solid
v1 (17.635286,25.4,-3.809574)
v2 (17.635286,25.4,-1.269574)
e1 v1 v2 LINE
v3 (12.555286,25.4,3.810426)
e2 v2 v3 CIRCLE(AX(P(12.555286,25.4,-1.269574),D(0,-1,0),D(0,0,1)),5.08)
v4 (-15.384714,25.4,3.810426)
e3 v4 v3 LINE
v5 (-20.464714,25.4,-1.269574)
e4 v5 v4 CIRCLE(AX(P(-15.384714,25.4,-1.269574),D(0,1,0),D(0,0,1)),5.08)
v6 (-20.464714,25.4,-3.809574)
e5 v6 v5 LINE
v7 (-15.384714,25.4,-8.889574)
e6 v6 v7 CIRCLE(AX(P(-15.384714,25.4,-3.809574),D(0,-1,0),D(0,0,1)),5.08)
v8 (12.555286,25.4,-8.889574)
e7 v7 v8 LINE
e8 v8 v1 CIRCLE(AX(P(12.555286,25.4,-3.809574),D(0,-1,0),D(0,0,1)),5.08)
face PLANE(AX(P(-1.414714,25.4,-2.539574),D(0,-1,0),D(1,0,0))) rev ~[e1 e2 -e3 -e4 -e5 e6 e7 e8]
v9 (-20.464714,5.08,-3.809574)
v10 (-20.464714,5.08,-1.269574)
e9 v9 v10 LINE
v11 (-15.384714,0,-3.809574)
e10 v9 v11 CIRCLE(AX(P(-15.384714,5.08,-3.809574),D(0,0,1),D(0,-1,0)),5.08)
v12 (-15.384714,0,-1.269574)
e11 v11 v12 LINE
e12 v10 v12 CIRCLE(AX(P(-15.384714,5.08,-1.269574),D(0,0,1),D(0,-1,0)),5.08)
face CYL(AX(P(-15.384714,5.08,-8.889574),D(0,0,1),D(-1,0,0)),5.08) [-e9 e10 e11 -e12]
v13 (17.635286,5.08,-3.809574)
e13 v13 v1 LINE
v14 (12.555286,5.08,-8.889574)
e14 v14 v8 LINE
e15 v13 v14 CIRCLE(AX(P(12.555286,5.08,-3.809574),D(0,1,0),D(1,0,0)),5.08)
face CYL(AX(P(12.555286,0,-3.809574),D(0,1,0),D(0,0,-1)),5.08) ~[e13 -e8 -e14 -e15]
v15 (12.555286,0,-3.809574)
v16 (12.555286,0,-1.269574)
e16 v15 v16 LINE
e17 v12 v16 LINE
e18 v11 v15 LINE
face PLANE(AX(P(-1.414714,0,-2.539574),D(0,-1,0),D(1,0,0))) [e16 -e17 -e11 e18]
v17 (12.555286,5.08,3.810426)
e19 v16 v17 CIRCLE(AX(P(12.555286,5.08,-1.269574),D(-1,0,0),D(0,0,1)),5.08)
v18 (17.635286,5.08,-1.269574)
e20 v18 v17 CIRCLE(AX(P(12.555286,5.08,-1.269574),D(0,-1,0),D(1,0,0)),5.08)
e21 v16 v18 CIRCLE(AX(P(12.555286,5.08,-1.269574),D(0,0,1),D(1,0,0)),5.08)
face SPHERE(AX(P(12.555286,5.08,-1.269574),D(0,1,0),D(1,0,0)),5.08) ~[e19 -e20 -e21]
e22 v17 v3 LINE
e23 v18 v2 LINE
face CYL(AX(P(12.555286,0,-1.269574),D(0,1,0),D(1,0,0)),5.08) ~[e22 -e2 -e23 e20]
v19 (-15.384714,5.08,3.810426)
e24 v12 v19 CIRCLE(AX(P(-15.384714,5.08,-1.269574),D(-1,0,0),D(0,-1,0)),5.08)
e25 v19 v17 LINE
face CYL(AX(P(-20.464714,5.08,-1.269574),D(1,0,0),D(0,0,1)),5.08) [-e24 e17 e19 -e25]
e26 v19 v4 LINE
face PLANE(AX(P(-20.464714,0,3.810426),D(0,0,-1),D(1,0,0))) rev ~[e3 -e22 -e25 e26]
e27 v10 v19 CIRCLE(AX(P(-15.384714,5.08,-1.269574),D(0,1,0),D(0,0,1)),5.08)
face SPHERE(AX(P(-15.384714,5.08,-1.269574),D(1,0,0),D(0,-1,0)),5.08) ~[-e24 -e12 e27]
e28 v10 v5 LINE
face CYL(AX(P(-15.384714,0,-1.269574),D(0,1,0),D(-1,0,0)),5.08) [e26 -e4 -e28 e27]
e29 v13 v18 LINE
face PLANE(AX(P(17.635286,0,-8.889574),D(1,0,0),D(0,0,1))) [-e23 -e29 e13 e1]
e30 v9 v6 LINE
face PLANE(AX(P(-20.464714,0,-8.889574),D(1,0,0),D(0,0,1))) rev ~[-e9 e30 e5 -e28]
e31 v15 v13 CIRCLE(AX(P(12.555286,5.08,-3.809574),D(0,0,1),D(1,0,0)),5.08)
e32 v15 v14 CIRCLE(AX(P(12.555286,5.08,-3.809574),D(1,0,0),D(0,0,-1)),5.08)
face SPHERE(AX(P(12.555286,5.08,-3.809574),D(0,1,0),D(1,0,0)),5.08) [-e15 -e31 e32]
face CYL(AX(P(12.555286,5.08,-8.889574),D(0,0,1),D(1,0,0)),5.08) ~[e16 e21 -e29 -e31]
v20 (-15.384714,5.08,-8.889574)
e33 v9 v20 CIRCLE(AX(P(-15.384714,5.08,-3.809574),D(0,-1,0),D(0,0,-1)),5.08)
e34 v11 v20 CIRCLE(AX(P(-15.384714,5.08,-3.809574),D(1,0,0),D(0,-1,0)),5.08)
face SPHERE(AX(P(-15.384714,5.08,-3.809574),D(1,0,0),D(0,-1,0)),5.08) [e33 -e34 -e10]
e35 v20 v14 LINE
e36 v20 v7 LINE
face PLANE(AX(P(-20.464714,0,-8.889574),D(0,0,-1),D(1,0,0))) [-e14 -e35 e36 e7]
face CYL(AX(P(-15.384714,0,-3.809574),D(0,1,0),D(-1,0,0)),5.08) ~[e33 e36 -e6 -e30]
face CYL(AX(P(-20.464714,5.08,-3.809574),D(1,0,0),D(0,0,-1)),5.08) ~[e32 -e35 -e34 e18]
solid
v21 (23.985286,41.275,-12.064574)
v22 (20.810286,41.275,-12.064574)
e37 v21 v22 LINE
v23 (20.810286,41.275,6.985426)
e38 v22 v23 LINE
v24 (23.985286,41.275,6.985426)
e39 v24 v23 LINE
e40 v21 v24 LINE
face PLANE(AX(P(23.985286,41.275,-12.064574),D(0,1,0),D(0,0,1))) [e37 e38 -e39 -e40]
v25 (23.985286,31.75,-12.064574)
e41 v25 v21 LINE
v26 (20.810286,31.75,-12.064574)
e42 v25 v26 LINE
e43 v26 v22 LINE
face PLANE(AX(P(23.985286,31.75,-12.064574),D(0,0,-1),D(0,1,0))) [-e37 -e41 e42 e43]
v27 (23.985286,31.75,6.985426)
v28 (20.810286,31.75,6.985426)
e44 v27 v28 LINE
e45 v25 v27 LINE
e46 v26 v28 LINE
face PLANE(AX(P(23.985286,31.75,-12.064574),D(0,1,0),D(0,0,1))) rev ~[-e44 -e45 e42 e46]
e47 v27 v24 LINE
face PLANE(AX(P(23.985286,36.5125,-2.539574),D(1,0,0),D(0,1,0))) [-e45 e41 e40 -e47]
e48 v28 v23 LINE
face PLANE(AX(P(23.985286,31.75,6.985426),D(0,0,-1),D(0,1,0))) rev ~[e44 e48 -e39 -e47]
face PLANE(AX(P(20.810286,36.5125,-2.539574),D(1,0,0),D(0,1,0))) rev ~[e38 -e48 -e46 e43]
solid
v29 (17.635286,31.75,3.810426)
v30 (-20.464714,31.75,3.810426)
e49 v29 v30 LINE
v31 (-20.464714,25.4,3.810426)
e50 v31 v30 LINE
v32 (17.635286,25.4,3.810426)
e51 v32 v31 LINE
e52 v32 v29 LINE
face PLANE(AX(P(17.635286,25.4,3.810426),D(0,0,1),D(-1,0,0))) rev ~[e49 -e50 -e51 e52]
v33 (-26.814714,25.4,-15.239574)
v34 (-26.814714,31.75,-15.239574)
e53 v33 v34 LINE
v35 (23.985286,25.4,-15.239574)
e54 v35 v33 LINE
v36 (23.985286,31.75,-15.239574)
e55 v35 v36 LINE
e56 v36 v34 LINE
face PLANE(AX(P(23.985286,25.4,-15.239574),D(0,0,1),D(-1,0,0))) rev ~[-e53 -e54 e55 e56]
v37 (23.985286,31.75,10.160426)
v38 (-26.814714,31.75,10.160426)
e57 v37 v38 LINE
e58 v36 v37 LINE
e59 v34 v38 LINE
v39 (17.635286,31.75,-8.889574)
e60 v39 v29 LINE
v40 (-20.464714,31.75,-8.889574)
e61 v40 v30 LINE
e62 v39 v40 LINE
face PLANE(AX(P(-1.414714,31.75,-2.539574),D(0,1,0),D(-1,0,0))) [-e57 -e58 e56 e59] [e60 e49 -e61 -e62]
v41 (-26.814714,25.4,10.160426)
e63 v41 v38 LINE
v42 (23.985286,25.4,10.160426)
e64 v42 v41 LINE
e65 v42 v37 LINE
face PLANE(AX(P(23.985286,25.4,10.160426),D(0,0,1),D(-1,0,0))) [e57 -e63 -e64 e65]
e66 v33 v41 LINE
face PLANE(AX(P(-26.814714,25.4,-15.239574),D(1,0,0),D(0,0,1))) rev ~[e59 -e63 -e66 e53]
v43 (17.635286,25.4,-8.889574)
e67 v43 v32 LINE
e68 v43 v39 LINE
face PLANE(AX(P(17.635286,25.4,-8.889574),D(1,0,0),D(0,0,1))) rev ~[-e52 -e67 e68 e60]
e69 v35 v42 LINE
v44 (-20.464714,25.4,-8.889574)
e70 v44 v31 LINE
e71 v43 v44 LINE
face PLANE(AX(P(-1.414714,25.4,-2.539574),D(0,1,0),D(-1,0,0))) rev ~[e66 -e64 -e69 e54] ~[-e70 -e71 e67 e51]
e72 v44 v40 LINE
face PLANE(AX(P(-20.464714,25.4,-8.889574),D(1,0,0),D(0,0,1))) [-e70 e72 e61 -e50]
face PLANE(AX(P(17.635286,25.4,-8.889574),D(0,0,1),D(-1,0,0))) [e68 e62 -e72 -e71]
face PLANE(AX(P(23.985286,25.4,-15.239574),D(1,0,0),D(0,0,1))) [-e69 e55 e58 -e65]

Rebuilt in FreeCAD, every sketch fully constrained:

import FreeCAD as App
import Part
import Sketcher
Q = App.Units.Quantity


def edges_at(feature, points):
    """Names of the edges that pass closest to the given points."""
    edges = feature.Shape.Edges
    near = lambda p: min(range(len(edges)), key=lambda i: edges[i].distToShape(Part.Vertex(*p))[0])
    return sorted({f"Edge{near(p) + 1}" for p in points})

doc = App.newDocument("Part")
body = doc.addObject("PartDesign::Body", "Body")

# Sketch on XZ plane
sketch1 = doc.addObject("Sketcher::SketchObject", "Sketch")
body.addObject(sketch1)
sketch1.AttachmentSupport = (doc.XZ_Plane, [""])
sketch1.MapMode = "FlatFace"
sketch1.addGeometry([
    Part.LineSegment(App.Vector(-20.464714, 3.810426, 0), App.Vector(-20.464714, -8.889574, 0)),
    Part.LineSegment(App.Vector(-20.464714, -8.889574, 0), App.Vector(17.635286, -8.889574, 0)),
    Part.LineSegment(App.Vector(17.635286, -8.889574, 0), App.Vector(17.635286, 3.810426, 0)),
    Part.LineSegment(App.Vector(17.635286, 3.810426, 0), App.Vector(-20.464714, 3.810426, 0)),
], False)
sketch1.addConstraint([
    Sketcher.Constraint("Coincident", 0, 2, 1, 1),
    Sketcher.Constraint("Coincident", 1, 2, 2, 1),
    Sketcher.Constraint("Coincident", 2, 2, 3, 1),
    Sketcher.Constraint("Coincident", 3, 2, 0, 1),
    Sketcher.Constraint("Vertical", 0),
    Sketcher.Constraint("Horizontal", 1),
    Sketcher.Constraint("Vertical", 2),
    Sketcher.Constraint("Horizontal", 3),
    Sketcher.Constraint("DistanceX", 1, 1, 1, 2, Q("1.5 in")),
    Sketcher.Constraint("DistanceY", 0, 2, 0, 1, Q("0.5 in")),
    Sketcher.Constraint("DistanceX", 0, 2, -1, 1, Q("20.464714 mm")),
    Sketcher.Constraint("DistanceY", 0, 2, -1, 1, Q("8.889574 mm")),
])
pad1 = doc.addObject("PartDesign::Pad", "Pad")
body.addObject(pad1)
pad1.Profile = sketch1
pad1.Length = Q("1 in")
pad1.Reversed = True
doc.recompute()

fillet = doc.addObject("PartDesign::Fillet", "Fillet")
body.addObject(fillet)
fillet.Base = (pad1, edges_at(pad1, [
    (17.635, 12.7, 3.81),
    (17.635, 12.7, -8.89),
    (17.635, 0, -2.54),
    (-1.415, 0, 3.81),
    (-1.415, 0, -8.89),
    (-20.465, 0, -2.54),
    (-20.465, 12.7, 3.81),
    (-20.465, 12.7, -8.89),
]))
fillet.Radius = Q("0.2 in")
body2 = doc.addObject("PartDesign::Body", "Body001")

# Sketch on XZ plane
sketch2 = doc.addObject("Sketcher::SketchObject", "Sketch001")
body2.addObject(sketch2)
sketch2.AttachmentSupport = (doc.getObject("XZ_Plane001"), [""])
sketch2.MapMode = "FlatFace"
sketch2.AttachmentOffset = App.Placement(App.Vector(0, 0, -1 * 25.4), App.Rotation())
sketch2.addGeometry([
    Part.LineSegment(App.Vector(23.985286, 10.160426, 0), App.Vector(23.985286, -15.239574, 0)),  # 0
    Part.LineSegment(App.Vector(23.985286, -15.239574, 0), App.Vector(-26.814714, -15.239574, 0)),  # 1
    Part.LineSegment(App.Vector(-26.814714, -15.239574, 0), App.Vector(-26.814714, 10.160426, 0)),  # 2
    Part.LineSegment(App.Vector(-26.814714, 10.160426, 0), App.Vector(23.985286, 10.160426, 0)),  # 3
    Part.LineSegment(App.Vector(-20.464714, -8.889574, 0), App.Vector(17.635286, -8.889574, 0)),  # 4
    Part.LineSegment(App.Vector(17.635286, -8.889574, 0), App.Vector(17.635286, 3.810426, 0)),  # 5
    Part.LineSegment(App.Vector(17.635286, 3.810426, 0), App.Vector(-20.464714, 3.810426, 0)),  # 6
    Part.LineSegment(App.Vector(-20.464714, 3.810426, 0), App.Vector(-20.464714, -8.889574, 0)),  # 7
], False)
sketch2.addConstraint([
    Sketcher.Constraint("Coincident", 0, 2, 1, 1),
    Sketcher.Constraint("Coincident", 1, 2, 2, 1),
    Sketcher.Constraint("Coincident", 2, 2, 3, 1),
    Sketcher.Constraint("Coincident", 3, 2, 0, 1),
    Sketcher.Constraint("Coincident", 4, 2, 5, 1),
    Sketcher.Constraint("Coincident", 5, 2, 6, 1),
    Sketcher.Constraint("Coincident", 6, 2, 7, 1),
    Sketcher.Constraint("Coincident", 7, 2, 4, 1),
    Sketcher.Constraint("Vertical", 0),
    Sketcher.Constraint("Horizontal", 1),
    Sketcher.Constraint("Vertical", 2),
    Sketcher.Constraint("Horizontal", 3),
    Sketcher.Constraint("Horizontal", 4),
    Sketcher.Constraint("Vertical", 5),
    Sketcher.Constraint("Horizontal", 6),
    Sketcher.Constraint("Vertical", 7),
    Sketcher.Constraint("DistanceX", 1, 2, 1, 1, Q("2 in")),
    Sketcher.Constraint("DistanceY", 0, 2, 0, 1, Q("1 in")),
    Sketcher.Constraint("DistanceX", 4, 1, 4, 2, Q("1.5 in")),
    Sketcher.Constraint("DistanceY", 5, 1, 5, 2, Q("0.5 in")),
    Sketcher.Constraint("DistanceX", 4, 2, 0, 2, Q("0.25 in")),
    Sketcher.Constraint("DistanceY", 0, 2, 4, 2, Q("0.25 in")),
    Sketcher.Constraint("DistanceX", -1, 1, 0, 2, Q("23.985286 mm")),
    Sketcher.Constraint("DistanceY", 0, 2, -1, 1, Q("15.239574 mm")),
])
pad2 = doc.addObject("PartDesign::Pad", "Pad001")
body2.addObject(pad2)
pad2.Profile = sketch2
pad2.Length = Q("0.25 in")
pad2.Reversed = True
body3 = doc.addObject("PartDesign::Body", "Body002")

# Sketch on YZ plane
sketch3 = doc.addObject("Sketcher::SketchObject", "Sketch002")
body3.addObject(sketch3)
sketch3.AttachmentSupport = (doc.getObject("YZ_Plane002"), [""])
sketch3.MapMode = "FlatFace"
sketch3.AttachmentOffset = App.Placement(App.Vector(0, 0, 23.985286), App.Rotation())
sketch3.addGeometry([
    Part.LineSegment(App.Vector(31.75, 6.985426, 0), App.Vector(31.75, -12.064574, 0)),
    Part.LineSegment(App.Vector(31.75, -12.064574, 0), App.Vector(41.275, -12.064574, 0)),
    Part.LineSegment(App.Vector(41.275, -12.064574, 0), App.Vector(41.275, 6.985426, 0)),
    Part.LineSegment(App.Vector(41.275, 6.985426, 0), App.Vector(31.75, 6.985426, 0)),
], False)
sketch3.addConstraint([
    Sketcher.Constraint("Coincident", 0, 2, 1, 1),
    Sketcher.Constraint("Coincident", 1, 2, 2, 1),
    Sketcher.Constraint("Coincident", 2, 2, 3, 1),
    Sketcher.Constraint("Coincident", 3, 2, 0, 1),
    Sketcher.Constraint("Vertical", 0),
    Sketcher.Constraint("Horizontal", 1),
    Sketcher.Constraint("Vertical", 2),
    Sketcher.Constraint("Horizontal", 3),
    Sketcher.Constraint("DistanceY", 0, 2, 0, 1, Q("0.75 in")),
    Sketcher.Constraint("DistanceX", 1, 1, 1, 2, Q("0.375 in")),
    Sketcher.Constraint("DistanceX", -1, 1, 0, 2, Q("1.25 in")),
    Sketcher.Constraint("DistanceY", 0, 2, -1, 1, Q("12.064574 mm")),
])
pad3 = doc.addObject("PartDesign::Pad", "Pad002")
body3.addObject(pad3)
pad3.Profile = sketch3
pad3.Length = Q("0.125 in")
pad3.Reversed = True

doc.recompute()
